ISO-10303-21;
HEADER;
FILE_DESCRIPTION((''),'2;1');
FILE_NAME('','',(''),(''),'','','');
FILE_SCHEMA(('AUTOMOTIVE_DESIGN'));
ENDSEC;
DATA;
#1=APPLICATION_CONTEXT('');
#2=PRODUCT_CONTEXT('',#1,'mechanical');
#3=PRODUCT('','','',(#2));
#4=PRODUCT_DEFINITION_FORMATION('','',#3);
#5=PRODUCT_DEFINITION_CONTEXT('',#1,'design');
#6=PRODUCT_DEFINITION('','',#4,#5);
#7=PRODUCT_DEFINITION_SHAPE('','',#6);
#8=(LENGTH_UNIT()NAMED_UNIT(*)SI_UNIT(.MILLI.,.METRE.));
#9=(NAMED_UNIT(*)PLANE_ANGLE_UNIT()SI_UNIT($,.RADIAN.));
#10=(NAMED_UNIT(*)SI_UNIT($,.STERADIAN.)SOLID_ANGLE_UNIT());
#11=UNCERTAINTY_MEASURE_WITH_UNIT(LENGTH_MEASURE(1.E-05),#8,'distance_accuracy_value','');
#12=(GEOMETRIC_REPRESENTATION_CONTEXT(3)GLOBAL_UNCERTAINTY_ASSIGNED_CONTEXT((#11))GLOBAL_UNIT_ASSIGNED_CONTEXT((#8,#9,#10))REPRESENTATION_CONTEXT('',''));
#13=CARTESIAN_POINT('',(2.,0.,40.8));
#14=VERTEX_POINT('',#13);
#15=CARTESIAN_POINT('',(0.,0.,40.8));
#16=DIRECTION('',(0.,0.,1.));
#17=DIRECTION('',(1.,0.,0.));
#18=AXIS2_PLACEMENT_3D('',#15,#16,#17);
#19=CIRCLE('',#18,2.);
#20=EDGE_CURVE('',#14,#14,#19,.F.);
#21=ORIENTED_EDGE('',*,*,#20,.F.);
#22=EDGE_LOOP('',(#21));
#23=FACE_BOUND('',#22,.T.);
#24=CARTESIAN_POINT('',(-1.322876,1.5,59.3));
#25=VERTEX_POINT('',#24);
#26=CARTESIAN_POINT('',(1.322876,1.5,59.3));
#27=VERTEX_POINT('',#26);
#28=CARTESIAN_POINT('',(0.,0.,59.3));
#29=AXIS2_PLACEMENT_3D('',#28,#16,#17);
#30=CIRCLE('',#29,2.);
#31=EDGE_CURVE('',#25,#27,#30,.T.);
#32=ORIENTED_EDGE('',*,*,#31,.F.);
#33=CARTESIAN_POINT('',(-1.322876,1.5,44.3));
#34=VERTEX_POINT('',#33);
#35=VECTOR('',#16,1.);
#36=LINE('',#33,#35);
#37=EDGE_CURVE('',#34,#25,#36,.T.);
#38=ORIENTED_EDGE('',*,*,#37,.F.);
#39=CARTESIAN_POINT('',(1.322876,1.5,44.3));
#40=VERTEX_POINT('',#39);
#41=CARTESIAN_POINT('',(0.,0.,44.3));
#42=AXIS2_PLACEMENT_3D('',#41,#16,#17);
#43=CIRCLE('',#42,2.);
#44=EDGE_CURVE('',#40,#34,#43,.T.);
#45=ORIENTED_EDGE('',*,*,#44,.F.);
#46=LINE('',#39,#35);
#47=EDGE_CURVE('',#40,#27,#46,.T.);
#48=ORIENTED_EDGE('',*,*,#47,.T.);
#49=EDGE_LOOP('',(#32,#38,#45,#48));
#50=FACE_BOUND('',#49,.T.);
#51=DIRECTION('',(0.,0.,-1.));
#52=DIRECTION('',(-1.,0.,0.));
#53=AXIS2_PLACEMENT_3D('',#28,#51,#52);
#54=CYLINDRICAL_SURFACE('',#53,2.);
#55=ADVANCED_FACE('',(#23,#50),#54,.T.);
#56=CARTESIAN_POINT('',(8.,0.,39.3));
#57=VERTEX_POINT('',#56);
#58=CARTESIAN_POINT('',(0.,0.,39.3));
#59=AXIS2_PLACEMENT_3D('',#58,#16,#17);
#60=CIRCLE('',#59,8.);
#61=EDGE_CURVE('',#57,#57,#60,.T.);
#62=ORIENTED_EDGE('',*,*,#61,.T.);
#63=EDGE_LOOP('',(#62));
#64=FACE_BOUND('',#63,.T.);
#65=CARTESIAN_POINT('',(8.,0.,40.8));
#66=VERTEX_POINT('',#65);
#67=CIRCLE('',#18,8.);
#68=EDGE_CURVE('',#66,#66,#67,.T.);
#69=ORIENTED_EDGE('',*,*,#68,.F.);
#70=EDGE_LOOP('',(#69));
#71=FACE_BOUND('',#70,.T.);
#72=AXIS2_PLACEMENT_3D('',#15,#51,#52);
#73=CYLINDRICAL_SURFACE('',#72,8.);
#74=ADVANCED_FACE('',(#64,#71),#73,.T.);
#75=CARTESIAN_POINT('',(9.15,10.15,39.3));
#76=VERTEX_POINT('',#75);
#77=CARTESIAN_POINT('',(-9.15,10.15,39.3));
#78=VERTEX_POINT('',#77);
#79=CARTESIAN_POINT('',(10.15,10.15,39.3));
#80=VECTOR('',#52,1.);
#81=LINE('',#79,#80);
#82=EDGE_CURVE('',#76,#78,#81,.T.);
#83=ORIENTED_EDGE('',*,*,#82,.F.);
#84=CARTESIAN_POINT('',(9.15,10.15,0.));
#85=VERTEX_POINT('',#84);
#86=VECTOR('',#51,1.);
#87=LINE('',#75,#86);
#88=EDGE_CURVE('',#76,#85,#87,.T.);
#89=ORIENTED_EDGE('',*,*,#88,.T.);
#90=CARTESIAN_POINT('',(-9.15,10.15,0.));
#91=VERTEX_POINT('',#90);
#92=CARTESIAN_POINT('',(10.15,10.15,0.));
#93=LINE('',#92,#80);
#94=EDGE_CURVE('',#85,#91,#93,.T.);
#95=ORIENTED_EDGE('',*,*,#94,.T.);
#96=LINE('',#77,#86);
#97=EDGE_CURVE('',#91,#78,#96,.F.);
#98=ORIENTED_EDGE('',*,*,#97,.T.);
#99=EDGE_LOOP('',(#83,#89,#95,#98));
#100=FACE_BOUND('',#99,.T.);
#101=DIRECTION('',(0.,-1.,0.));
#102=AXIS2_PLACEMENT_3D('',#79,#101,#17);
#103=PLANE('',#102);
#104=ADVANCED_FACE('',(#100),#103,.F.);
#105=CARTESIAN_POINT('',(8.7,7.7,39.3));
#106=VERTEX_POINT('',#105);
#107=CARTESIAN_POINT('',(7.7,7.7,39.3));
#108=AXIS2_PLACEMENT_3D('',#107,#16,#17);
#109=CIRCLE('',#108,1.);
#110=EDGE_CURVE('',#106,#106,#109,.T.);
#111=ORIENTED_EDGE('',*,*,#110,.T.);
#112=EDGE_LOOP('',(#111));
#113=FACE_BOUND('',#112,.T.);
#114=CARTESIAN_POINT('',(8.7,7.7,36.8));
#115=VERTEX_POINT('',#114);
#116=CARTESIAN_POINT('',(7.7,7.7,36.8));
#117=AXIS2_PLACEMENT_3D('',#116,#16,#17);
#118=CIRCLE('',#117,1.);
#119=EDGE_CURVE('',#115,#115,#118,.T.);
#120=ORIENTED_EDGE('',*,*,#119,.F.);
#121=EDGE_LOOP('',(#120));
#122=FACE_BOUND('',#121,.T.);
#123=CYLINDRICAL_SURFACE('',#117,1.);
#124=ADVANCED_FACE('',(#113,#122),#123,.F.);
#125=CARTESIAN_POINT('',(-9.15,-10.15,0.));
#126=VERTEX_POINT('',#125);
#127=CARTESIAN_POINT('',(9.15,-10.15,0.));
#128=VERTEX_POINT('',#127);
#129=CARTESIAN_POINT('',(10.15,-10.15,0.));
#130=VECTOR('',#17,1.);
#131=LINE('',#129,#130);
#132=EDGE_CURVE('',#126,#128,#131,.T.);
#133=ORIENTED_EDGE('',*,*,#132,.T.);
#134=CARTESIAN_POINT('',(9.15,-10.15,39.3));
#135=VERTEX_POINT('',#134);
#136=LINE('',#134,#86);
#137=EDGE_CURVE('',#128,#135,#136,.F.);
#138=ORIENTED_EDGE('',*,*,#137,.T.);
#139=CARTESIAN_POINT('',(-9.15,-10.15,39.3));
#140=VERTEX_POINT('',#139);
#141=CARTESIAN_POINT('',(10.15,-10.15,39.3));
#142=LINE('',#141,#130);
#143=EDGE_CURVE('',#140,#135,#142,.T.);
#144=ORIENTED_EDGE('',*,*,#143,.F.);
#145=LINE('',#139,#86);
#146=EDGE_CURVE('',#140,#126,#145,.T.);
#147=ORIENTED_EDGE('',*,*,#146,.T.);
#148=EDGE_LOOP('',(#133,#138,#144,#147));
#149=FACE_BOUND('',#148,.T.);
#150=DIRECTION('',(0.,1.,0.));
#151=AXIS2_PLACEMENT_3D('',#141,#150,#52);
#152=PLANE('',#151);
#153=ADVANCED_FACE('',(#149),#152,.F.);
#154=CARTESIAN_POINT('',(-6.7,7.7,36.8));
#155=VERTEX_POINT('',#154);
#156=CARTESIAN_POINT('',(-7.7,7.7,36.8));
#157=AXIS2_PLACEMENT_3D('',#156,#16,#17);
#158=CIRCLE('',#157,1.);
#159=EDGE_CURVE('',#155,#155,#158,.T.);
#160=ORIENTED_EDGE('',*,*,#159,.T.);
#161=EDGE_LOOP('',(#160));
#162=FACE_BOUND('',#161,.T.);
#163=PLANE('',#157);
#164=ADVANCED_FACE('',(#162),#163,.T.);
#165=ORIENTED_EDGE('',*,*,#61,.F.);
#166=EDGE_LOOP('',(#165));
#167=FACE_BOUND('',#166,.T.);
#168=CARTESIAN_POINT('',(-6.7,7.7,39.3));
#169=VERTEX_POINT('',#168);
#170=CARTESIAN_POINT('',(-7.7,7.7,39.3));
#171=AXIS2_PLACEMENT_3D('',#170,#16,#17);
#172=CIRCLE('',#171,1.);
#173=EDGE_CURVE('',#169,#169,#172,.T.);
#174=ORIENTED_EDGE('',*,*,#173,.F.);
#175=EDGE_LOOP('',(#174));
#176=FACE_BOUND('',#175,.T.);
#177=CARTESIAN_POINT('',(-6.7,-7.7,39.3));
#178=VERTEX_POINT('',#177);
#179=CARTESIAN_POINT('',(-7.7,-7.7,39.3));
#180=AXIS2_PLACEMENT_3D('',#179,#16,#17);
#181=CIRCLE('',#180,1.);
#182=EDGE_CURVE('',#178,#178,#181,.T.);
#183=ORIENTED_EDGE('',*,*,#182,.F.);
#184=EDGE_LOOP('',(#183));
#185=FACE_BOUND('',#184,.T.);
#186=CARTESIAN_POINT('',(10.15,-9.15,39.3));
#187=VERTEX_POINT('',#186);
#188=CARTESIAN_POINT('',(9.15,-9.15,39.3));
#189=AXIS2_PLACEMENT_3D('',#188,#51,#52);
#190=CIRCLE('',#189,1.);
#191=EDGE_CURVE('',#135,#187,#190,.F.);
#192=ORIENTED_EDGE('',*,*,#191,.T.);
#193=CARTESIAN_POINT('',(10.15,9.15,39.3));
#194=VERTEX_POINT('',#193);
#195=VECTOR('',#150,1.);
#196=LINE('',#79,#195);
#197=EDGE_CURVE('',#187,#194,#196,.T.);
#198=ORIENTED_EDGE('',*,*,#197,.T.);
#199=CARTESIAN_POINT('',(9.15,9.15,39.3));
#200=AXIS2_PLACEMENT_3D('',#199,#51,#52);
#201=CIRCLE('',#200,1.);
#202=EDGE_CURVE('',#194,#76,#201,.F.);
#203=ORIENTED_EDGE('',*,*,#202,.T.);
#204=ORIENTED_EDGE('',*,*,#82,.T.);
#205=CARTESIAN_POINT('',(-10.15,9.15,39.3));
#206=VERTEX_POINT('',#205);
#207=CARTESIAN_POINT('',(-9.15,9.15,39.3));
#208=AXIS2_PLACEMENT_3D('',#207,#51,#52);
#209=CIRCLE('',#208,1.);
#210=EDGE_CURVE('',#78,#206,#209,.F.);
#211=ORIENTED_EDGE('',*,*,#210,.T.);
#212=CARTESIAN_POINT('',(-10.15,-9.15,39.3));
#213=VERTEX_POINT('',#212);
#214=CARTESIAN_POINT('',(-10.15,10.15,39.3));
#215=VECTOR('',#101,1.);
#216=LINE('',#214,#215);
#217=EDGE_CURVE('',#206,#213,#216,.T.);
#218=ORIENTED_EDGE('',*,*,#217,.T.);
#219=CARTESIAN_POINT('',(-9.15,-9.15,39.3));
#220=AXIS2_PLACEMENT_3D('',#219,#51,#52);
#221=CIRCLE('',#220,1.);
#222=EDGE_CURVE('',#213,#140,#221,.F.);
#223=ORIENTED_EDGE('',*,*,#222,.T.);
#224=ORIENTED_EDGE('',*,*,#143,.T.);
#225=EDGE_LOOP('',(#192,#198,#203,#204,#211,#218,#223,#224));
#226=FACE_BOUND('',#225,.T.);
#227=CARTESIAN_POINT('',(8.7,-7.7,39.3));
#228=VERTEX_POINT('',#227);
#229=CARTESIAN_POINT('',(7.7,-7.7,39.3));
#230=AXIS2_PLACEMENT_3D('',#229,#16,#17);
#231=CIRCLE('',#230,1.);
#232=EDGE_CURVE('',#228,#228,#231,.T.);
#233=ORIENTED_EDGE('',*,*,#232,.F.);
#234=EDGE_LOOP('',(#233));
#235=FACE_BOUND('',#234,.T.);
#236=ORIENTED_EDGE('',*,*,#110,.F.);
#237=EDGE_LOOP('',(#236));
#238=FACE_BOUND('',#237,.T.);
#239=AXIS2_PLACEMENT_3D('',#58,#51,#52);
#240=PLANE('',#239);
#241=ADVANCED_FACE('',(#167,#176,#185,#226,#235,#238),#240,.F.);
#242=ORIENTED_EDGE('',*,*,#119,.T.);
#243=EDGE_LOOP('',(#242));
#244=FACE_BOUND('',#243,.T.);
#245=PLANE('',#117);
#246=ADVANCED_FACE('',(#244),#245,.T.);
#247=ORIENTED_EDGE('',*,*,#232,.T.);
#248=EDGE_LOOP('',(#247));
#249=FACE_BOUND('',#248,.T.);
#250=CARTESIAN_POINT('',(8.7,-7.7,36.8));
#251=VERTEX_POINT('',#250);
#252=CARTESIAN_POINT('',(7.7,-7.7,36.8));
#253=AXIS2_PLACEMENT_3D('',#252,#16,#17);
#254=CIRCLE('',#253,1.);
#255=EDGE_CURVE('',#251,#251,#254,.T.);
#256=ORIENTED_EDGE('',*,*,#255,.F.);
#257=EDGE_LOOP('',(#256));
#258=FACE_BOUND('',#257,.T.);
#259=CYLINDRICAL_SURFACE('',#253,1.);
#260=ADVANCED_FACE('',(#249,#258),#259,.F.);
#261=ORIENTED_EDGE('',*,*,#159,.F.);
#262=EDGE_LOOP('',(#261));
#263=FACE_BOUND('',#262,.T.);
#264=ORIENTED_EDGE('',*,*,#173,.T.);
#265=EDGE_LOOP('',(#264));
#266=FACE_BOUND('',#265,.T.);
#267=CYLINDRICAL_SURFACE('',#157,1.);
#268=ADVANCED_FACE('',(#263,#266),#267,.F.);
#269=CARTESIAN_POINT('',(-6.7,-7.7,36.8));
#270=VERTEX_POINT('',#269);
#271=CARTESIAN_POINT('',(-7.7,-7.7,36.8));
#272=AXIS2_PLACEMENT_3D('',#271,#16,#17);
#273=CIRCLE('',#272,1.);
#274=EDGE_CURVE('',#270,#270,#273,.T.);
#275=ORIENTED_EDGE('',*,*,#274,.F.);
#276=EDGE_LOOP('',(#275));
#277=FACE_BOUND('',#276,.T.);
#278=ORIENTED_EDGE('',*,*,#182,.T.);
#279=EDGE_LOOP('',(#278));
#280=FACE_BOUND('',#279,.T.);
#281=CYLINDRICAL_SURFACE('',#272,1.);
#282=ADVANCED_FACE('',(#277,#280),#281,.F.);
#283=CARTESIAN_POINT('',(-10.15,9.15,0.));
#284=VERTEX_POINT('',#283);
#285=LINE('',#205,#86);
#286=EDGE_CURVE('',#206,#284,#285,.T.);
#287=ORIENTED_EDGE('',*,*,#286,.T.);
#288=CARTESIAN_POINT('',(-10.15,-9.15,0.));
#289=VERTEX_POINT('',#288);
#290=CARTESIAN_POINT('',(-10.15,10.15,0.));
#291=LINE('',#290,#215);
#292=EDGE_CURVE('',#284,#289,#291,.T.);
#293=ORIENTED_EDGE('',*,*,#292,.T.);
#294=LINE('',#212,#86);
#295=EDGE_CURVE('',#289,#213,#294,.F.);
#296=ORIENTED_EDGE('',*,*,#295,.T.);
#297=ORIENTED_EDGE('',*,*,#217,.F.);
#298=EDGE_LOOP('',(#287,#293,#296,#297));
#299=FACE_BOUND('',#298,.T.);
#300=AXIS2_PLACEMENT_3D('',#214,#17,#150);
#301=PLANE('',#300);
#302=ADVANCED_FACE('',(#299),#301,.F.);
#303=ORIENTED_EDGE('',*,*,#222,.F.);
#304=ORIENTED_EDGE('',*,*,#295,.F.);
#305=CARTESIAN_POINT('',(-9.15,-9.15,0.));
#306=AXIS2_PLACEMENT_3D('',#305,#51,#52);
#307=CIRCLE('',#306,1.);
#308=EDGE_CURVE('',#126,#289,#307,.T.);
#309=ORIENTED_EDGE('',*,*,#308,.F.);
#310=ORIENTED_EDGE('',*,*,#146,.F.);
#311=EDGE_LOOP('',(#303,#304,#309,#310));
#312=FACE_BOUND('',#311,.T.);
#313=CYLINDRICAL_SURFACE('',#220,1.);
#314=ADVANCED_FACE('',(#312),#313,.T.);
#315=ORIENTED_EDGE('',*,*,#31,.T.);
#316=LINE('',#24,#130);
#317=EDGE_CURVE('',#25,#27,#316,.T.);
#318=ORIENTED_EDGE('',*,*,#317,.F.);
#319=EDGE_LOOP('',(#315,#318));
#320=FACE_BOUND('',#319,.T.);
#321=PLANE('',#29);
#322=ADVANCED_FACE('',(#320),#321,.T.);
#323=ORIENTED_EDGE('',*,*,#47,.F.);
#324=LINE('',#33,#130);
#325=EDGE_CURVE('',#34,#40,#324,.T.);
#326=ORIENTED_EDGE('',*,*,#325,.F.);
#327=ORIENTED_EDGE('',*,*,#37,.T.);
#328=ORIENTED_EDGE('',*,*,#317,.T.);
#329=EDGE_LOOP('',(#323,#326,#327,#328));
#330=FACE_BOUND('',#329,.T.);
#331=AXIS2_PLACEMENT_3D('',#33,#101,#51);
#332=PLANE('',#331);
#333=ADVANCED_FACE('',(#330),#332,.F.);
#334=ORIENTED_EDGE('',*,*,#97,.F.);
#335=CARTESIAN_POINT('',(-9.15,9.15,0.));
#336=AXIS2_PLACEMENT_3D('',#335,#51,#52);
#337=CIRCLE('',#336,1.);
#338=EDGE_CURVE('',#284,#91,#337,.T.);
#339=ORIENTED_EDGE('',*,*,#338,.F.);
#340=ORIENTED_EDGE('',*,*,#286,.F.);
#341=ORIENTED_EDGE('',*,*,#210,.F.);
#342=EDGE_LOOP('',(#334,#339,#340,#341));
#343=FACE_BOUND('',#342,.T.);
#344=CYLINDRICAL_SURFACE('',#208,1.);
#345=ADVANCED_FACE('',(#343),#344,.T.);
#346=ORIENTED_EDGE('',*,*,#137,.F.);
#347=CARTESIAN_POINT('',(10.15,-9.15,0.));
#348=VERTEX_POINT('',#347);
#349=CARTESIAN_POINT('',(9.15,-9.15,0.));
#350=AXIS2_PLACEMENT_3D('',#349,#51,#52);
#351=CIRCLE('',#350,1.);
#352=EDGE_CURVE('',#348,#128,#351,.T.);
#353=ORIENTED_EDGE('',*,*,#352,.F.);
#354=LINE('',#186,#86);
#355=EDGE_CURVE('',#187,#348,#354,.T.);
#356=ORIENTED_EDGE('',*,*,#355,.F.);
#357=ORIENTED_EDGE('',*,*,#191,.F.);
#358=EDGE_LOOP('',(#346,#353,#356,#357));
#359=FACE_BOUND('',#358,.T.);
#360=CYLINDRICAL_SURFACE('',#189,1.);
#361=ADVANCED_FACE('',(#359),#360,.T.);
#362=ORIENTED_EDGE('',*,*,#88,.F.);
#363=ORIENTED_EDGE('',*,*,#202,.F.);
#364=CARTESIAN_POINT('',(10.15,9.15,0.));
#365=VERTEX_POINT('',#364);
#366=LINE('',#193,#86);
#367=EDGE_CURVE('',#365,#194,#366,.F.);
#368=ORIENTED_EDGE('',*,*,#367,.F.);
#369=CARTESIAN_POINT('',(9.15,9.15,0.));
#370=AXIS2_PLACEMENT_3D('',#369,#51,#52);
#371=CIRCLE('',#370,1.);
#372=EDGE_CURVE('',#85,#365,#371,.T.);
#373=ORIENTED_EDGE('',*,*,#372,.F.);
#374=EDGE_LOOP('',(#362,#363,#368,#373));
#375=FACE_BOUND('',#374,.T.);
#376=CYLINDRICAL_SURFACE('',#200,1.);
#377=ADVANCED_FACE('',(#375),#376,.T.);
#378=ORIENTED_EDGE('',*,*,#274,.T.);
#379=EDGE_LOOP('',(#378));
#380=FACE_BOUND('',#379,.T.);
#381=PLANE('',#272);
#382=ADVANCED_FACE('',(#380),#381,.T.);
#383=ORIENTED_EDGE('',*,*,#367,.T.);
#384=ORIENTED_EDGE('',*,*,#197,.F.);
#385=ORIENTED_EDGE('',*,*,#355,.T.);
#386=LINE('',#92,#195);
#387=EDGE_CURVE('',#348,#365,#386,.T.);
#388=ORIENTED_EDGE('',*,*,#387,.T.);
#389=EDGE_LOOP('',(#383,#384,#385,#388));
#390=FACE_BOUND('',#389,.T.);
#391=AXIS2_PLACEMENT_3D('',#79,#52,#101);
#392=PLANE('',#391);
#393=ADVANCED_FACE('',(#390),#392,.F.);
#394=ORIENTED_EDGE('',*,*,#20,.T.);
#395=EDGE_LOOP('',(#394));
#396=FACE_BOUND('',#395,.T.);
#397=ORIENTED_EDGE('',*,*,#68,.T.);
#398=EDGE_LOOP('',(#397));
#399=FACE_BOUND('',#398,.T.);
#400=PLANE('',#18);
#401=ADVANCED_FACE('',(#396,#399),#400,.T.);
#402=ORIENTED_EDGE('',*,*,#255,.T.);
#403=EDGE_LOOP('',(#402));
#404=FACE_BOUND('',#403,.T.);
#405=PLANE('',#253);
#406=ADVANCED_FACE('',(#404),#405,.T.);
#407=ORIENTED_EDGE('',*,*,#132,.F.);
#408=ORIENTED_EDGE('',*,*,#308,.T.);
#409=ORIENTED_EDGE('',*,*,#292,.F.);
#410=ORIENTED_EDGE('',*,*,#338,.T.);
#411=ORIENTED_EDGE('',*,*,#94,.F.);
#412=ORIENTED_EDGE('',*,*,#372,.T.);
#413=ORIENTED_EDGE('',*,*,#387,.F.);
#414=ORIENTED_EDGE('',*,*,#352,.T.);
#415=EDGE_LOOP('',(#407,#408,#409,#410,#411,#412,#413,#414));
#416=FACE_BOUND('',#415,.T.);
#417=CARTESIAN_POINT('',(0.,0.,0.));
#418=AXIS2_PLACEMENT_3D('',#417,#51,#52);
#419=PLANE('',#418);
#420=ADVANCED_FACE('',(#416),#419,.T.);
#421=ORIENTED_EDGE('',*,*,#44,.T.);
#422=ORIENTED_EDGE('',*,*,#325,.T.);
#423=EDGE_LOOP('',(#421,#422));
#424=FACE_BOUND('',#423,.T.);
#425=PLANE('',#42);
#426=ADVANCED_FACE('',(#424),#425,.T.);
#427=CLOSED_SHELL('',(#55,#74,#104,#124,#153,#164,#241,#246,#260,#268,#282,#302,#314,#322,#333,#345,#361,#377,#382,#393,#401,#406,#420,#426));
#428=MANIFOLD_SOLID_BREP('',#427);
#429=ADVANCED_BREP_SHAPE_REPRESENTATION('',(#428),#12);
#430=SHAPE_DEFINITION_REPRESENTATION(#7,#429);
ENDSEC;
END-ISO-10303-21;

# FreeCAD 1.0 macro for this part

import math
import FreeCAD as App
import Part
import Sketcher


def edges_at(feature, points):
    """Names of the edges that pass closest to the given points."""
    edges = feature.Shape.Edges
    near = lambda p: min(range(len(edges)), key=lambda i: edges[i].distToShape(Part.Vertex(*p))[0])
    return sorted({f"Edge{near(p) + 1}" for p in points})

doc = App.newDocument("Part")
body = doc.addObject("PartDesign::Body", "Body")

sketch1 = body.newObject("Sketcher::SketchObject", "Sketch")
sketch1.AttachmentSupport = (doc.getObject("XY_Plane"), [""])
sketch1.MapMode = "FlatFace"
sketch1.addGeometry(Part.LineSegment(App.Vector(-10, 10, 0), App.Vector(-10, -10, 0)), False)
sketch1.addGeometry(Part.LineSegment(App.Vector(-10, -10, 0), App.Vector(10, -10, 0)), False)
sketch1.addGeometry(Part.LineSegment(App.Vector(10, -10, 0), App.Vector(10, 10, 0)), False)
sketch1.addGeometry(Part.LineSegment(App.Vector(10, 10, 0), App.Vector(-10, 10, 0)), False)
sketch1.addConstraint(Sketcher.Constraint("Coincident", 0, 2, 1, 1))
sketch1.addConstraint(Sketcher.Constraint("Coincident", 1, 2, 2, 1))
sketch1.addConstraint(Sketcher.Constraint("Coincident", 2, 2, 3, 1))
sketch1.addConstraint(Sketcher.Constraint("Coincident", 3, 2, 0, 1))
sketch1.addConstraint(Sketcher.Constraint("Vertical", 0))
sketch1.addConstraint(Sketcher.Constraint("Horizontal", 1))
sketch1.addConstraint(Sketcher.Constraint("Vertical", 2))
sketch1.addConstraint(Sketcher.Constraint("Horizontal", 3))
sketch1.addConstraint(Sketcher.Constraint("Symmetric", 0, 2, 2, 2, -1, 1))
sketch1.addConstraint(Sketcher.Constraint("Equal", 3, 0))
sketch1.addConstraint(Sketcher.Constraint("DistanceX", 1, 1, 1, 2, 20.3))
pad1 = body.newObject("PartDesign::Pad", "Pad")
pad1.Profile = sketch1
pad1.Length = 39.3
doc.recompute()

fillet = body.newObject("PartDesign::Fillet", "Fillet")
fillet.Base = (pad1, edges_at(pad1, [
    (-10.15, 10.15, 19.65),
    (10.15, 10.15, 19.65),
    (10.15, -10.15, 19.65),
    (-10.15, -10.15, 19.65),
]))
fillet.Radius = 1

sketch2 = body.newObject("Sketcher::SketchObject", "Sketch001")
sketch2.AttachmentSupport = (doc.getObject("XY_Plane"), [""])
sketch2.MapMode = "FlatFace"
sketch2.AttachmentOffset = App.Placement(App.Vector(0, 0, 39.3), App.Rotation())
sketch2.addGeometry(Part.Circle(App.Vector(-7.7, 7.7, 0), App.Vector(0, 0, 1), 1), False)
sketch2.addGeometry(Part.Circle(App.Vector(-7.7, -7.7, 0), App.Vector(0, 0, 1), 1), False)
sketch2.addGeometry(Part.Circle(App.Vector(7.7, -7.7, 0), App.Vector(0, 0, 1), 1), False)
sketch2.addGeometry(Part.Circle(App.Vector(7.7, 7.7, 0), App.Vector(0, 0, 1), 1), False)
sketch2.addConstraint(Sketcher.Constraint("Equal", 0, 1))
sketch2.addConstraint(Sketcher.Constraint("Equal", 1, 2))
sketch2.addConstraint(Sketcher.Constraint("Equal", 2, 3))
sketch2.addConstraint(Sketcher.Constraint("Symmetric", 0, 3, 2, 3, -1, 1))
sketch2.addConstraint(Sketcher.Constraint("Symmetric", 1, 3, 3, 3, -1, 1))
sketch2.addConstraint(Sketcher.Constraint("Symmetric", 1, 3, 2, 3, -2))
sketch2.addConstraint(Sketcher.Constraint("Diameter", 0, 2.0))
sketch2.addConstraint(Sketcher.Constraint("DistanceX", 0, 3, -1, 1, 7.7))
sketch2.addConstraint(Sketcher.Constraint("DistanceY", -1, 1, 0, 3, 7.7))
pocket1 = body.newObject("PartDesign::Pocket", "Pocket")
pocket1.Profile = sketch2
pocket1.Length = 2.5

sketch3 = body.newObject("Sketcher::SketchObject", "Sketch002")
sketch3.AttachmentSupport = (doc.getObject("XY_Plane"), [""])
sketch3.MapMode = "FlatFace"
sketch3.AttachmentOffset = App.Placement(App.Vector(0, 0, 39.3), App.Rotation())
sketch3.addGeometry(Part.Circle(App.Vector(0, 0, 0), App.Vector(0, 0, 1), 8), False)
sketch3.addConstraint(Sketcher.Constraint("Coincident", 0, 3, -1, 1))
sketch3.addConstraint(Sketcher.Constraint("Diameter", 0, 16.0))
pad2 = body.newObject("PartDesign::Pad", "Pad001")
pad2.Profile = sketch3
pad2.Length = 1.5

sketch4 = body.newObject("Sketcher::SketchObject", "Sketch003")
sketch4.AttachmentSupport = (doc.getObject("XY_Plane"), [""])
sketch4.MapMode = "FlatFace"
sketch4.AttachmentOffset = App.Placement(App.Vector(0, 0, 39.3), App.Rotation())
sketch4.addGeometry(Part.Circle(App.Vector(0, 0, 0), App.Vector(0, 0, 1), 2), False)
sketch4.addConstraint(Sketcher.Constraint("Coincident", 0, 3, -1, 1))
sketch4.addConstraint(Sketcher.Constraint("Diameter", 0, 4.0))
pad3 = body.newObject("PartDesign::Pad", "Pad002")
pad3.Profile = sketch4
pad3.Length = 20

sketch5 = body.newObject("Sketcher::SketchObject", "Sketch004")
sketch5.AttachmentSupport = (doc.getObject("XY_Plane"), [""])
sketch5.MapMode = "FlatFace"
sketch5.AttachmentOffset = App.Placement(App.Vector(0, 0, 44.3), App.Rotation())
sketch5.addGeometry(Part.LineSegment(App.Vector(-1.3, 1.5, 0), App.Vector(1.3, 1.5, 0)), False)
sketch5.addGeometry(Part.ArcOfCircle(Part.Circle(App.Vector(0, 0, 0), App.Vector(0, 0, 1), 2), math.radians(49), math.radians(131)), False)
sketch5.addConstraint(Sketcher.Constraint("Coincident", 0, 1, 1, 2))
sketch5.addConstraint(Sketcher.Constraint("Coincident", 1, 1, 0, 2))
sketch5.addConstraint(Sketcher.Constraint("Horizontal", 0))
sketch5.addConstraint(Sketcher.Constraint("Coincident", 1, 3, -1, 1))
sketch5.addConstraint(Sketcher.Constraint("Radius", 1, 2.0))
sketch5.addConstraint(Sketcher.Constraint("DistanceY", -1, 1, 0, 1, 1.5))
pocket2 = body.newObject("PartDesign::Pocket", "Pocket001")
pocket2.Profile = sketch5
pocket2.Length = 15
pocket2.Reversed = True

doc.recompute()
